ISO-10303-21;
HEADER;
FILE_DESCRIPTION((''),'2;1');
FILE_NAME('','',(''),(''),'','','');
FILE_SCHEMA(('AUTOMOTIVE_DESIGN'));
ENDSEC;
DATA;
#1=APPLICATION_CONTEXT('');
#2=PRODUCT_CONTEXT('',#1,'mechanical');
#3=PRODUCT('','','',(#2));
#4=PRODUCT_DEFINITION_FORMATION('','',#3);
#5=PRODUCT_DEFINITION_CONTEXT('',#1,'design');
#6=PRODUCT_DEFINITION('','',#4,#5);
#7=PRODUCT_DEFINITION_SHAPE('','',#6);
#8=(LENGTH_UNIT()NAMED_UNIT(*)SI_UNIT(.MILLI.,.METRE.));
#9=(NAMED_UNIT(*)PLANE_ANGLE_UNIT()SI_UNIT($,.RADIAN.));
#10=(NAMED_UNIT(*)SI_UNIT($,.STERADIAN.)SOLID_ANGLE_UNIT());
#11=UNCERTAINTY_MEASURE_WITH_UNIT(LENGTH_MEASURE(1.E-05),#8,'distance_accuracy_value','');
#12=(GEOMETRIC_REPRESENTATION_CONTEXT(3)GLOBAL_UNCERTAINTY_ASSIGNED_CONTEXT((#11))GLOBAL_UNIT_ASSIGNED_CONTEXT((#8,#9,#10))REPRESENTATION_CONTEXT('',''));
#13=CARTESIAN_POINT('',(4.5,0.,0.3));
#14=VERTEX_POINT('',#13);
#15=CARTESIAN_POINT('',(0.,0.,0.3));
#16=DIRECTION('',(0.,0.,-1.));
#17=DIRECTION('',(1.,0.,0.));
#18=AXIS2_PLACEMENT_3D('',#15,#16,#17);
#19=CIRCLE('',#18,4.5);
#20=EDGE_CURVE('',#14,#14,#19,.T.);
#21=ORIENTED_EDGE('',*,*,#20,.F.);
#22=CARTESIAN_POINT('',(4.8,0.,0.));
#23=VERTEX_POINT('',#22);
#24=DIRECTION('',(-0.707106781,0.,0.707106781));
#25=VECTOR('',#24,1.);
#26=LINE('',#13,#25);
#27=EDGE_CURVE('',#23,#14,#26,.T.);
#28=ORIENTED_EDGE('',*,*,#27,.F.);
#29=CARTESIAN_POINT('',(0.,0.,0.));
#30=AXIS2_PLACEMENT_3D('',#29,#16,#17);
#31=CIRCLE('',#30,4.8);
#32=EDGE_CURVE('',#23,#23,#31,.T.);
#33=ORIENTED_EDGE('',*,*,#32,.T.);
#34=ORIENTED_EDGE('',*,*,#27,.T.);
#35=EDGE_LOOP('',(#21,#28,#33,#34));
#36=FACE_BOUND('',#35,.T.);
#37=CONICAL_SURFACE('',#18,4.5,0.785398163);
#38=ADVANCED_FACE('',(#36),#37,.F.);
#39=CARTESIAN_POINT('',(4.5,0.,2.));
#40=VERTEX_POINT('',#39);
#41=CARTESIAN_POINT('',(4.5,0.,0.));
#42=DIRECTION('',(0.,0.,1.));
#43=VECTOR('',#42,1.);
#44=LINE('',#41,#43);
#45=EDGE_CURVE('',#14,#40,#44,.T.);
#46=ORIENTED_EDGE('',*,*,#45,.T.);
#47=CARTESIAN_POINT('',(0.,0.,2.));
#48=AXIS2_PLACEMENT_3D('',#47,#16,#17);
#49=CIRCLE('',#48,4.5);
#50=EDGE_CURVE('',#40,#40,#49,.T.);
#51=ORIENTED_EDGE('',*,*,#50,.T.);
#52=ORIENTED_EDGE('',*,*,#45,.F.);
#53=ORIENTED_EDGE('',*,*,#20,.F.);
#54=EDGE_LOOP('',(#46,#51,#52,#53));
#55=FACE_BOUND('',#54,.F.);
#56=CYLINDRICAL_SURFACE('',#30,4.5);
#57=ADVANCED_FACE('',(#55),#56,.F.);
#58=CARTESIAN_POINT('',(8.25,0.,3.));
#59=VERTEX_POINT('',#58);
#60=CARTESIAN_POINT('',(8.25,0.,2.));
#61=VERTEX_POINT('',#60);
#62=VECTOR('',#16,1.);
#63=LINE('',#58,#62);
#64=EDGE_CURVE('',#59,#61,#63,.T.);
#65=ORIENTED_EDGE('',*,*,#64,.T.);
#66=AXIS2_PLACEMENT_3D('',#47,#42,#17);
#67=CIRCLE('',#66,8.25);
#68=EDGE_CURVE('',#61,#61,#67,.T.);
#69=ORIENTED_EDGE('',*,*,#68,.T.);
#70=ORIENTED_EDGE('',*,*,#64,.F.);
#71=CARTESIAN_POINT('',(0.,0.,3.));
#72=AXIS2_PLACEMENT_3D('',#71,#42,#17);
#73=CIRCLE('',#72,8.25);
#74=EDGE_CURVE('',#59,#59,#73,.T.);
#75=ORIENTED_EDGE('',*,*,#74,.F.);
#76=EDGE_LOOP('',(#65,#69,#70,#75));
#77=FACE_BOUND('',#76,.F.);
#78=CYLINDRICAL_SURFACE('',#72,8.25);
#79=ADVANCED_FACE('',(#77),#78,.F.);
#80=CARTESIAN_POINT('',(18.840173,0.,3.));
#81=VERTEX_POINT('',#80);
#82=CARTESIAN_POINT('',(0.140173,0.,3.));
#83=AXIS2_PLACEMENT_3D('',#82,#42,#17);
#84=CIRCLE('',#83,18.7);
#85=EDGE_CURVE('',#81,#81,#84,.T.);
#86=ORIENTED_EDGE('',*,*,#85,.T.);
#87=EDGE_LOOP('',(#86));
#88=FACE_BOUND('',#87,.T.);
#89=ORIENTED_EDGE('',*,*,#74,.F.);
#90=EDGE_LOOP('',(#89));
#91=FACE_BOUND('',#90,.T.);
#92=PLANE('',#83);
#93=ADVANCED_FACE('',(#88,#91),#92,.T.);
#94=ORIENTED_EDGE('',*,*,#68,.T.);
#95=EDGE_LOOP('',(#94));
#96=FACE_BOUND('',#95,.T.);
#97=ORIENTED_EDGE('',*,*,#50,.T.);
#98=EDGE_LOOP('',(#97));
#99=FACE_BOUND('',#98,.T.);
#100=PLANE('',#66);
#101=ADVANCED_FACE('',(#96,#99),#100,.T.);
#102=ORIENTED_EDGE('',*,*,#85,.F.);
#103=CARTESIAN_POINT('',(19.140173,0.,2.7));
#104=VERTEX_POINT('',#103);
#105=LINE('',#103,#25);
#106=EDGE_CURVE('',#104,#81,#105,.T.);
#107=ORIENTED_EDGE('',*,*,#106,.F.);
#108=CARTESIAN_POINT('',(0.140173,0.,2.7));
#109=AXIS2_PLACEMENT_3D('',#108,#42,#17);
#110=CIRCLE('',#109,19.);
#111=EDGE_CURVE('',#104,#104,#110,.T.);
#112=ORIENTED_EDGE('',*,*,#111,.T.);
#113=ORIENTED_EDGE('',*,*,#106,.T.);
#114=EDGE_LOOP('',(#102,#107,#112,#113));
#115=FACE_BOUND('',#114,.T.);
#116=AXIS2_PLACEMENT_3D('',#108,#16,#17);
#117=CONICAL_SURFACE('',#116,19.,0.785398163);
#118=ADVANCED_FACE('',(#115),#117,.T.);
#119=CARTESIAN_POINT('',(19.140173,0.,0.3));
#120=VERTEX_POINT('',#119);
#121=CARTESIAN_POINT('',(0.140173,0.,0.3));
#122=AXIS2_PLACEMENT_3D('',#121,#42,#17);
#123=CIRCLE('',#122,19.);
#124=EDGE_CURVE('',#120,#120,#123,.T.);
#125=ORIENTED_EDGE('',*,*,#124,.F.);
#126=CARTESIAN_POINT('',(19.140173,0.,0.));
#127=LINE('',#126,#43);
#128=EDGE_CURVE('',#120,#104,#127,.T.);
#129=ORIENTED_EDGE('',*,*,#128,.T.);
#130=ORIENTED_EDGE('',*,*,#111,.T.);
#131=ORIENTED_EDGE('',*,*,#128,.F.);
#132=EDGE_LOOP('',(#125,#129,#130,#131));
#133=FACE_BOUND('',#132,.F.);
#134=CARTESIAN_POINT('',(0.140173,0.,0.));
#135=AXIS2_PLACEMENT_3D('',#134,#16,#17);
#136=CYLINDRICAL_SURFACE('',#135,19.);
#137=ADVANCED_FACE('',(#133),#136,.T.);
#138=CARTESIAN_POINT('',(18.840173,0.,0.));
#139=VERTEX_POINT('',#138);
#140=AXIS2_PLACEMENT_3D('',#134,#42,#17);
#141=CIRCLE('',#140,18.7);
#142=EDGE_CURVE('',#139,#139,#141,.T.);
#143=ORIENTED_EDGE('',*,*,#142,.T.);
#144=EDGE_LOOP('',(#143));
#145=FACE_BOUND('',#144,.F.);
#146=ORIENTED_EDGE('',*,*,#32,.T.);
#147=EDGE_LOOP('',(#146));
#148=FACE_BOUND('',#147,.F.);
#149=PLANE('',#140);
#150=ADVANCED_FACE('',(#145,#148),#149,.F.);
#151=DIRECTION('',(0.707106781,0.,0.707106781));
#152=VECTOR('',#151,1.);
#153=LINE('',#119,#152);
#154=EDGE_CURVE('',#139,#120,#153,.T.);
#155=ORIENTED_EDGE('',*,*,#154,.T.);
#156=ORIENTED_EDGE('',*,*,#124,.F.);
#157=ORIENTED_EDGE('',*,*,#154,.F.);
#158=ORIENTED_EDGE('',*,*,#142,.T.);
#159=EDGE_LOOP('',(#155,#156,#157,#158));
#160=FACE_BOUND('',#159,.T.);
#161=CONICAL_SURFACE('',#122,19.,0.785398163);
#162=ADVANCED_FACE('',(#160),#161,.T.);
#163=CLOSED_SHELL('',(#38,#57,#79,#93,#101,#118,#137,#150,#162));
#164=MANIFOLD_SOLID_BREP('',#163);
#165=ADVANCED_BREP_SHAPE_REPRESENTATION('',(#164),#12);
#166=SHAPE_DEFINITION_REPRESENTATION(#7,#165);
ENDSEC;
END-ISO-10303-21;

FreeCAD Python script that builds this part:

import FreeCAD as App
import Part
import Sketcher
from FreeCAD import Vector


def edges_at(feature, points):
    """Names of the edges that pass closest to the given points."""
    edges = feature.Shape.Edges
    near = lambda p: min(range(len(edges)), key=lambda i: edges[i].distToShape(Part.Vertex(*p))[0])
    return sorted({f"Edge{near(p) + 1}" for p in points})

doc = App.newDocument("Part")
body = doc.addObject("PartDesign::Body", "Body")

# Sketch on XY plane
sketch1 = body.newObject("Sketcher::SketchObject", "Sketch")
sketch1.AttachmentSupport = (doc.getObject("XY_Plane"), [""])
sketch1.MapMode = "FlatFace"
sketch1.addGeometry(Part.Circle(Vector(0, 0, 0), Vector(0, 0, 1), 19), False)
sketch1.addConstraint(Sketcher.Constraint("PointOnObject", 0, 3, -1))
sketch1.addConstraint(Sketcher.Constraint("Diameter", 0, 38.0))
sketch1.addConstraint(Sketcher.Constraint("DistanceX", -1, 1, 0, 3, 0.140173))
pad1 = body.newObject("PartDesign::Pad", "Pad")
pad1.Profile = sketch1
pad1.Length = 3

# Sketch on XY plane
sketch2 = body.newObject("Sketcher::SketchObject", "Sketch001")
sketch2.AttachmentSupport = (doc.getObject("XY_Plane"), [""])
sketch2.MapMode = "FlatFace"
sketch2.addGeometry(Part.Circle(Vector(0, 0, 0), Vector(0, 0, 1), 4.5), False)
sketch2.addConstraint(Sketcher.Constraint("Coincident", 0, 3, -1, 1))
sketch2.addConstraint(Sketcher.Constraint("Diameter", 0, 9.0))
pocket1 = body.newObject("PartDesign::Pocket", "Pocket")
pocket1.Profile = sketch2
pocket1.Type = "ThroughAll"
pocket1.Reversed = True
doc.recompute()

chamfer = body.newObject("PartDesign::Chamfer", "Chamfer")
chamfer.Base = (pocket1, edges_at(pocket1, [(-4.5, 0, 0), (-4.5, 0, 3)]))
chamfer.Size = 0.3
doc.recompute()

chamfer2 = body.newObject("PartDesign::Chamfer", "Chamfer001")
chamfer2.Base = (chamfer, edges_at(chamfer, [(-18.86, 0, 0), (-18.86, 0, 3)]))
chamfer2.Size = 0.3

# Sketch on XY plane
sketch3 = body.newObject("Sketcher::SketchObject", "Sketch002")
sketch3.AttachmentSupport = (doc.getObject("XY_Plane"), [""])
sketch3.MapMode = "FlatFace"
sketch3.AttachmentOffset = App.Placement(Vector(0, 0, 3), App.Rotation())
sketch3.addGeometry(Part.Circle(Vector(0, 0, 0), Vector(0, 0, 1), 8), False)
sketch3.addConstraint(Sketcher.Constraint("Coincident", 0, 3, -1, 1))
sketch3.addConstraint(Sketcher.Constraint("Diameter", 0, 16.5))
pocket2 = body.newObject("PartDesign::Pocket", "Pocket001")
pocket2.Profile = sketch3
pocket2.Length = 1

doc.recompute()
